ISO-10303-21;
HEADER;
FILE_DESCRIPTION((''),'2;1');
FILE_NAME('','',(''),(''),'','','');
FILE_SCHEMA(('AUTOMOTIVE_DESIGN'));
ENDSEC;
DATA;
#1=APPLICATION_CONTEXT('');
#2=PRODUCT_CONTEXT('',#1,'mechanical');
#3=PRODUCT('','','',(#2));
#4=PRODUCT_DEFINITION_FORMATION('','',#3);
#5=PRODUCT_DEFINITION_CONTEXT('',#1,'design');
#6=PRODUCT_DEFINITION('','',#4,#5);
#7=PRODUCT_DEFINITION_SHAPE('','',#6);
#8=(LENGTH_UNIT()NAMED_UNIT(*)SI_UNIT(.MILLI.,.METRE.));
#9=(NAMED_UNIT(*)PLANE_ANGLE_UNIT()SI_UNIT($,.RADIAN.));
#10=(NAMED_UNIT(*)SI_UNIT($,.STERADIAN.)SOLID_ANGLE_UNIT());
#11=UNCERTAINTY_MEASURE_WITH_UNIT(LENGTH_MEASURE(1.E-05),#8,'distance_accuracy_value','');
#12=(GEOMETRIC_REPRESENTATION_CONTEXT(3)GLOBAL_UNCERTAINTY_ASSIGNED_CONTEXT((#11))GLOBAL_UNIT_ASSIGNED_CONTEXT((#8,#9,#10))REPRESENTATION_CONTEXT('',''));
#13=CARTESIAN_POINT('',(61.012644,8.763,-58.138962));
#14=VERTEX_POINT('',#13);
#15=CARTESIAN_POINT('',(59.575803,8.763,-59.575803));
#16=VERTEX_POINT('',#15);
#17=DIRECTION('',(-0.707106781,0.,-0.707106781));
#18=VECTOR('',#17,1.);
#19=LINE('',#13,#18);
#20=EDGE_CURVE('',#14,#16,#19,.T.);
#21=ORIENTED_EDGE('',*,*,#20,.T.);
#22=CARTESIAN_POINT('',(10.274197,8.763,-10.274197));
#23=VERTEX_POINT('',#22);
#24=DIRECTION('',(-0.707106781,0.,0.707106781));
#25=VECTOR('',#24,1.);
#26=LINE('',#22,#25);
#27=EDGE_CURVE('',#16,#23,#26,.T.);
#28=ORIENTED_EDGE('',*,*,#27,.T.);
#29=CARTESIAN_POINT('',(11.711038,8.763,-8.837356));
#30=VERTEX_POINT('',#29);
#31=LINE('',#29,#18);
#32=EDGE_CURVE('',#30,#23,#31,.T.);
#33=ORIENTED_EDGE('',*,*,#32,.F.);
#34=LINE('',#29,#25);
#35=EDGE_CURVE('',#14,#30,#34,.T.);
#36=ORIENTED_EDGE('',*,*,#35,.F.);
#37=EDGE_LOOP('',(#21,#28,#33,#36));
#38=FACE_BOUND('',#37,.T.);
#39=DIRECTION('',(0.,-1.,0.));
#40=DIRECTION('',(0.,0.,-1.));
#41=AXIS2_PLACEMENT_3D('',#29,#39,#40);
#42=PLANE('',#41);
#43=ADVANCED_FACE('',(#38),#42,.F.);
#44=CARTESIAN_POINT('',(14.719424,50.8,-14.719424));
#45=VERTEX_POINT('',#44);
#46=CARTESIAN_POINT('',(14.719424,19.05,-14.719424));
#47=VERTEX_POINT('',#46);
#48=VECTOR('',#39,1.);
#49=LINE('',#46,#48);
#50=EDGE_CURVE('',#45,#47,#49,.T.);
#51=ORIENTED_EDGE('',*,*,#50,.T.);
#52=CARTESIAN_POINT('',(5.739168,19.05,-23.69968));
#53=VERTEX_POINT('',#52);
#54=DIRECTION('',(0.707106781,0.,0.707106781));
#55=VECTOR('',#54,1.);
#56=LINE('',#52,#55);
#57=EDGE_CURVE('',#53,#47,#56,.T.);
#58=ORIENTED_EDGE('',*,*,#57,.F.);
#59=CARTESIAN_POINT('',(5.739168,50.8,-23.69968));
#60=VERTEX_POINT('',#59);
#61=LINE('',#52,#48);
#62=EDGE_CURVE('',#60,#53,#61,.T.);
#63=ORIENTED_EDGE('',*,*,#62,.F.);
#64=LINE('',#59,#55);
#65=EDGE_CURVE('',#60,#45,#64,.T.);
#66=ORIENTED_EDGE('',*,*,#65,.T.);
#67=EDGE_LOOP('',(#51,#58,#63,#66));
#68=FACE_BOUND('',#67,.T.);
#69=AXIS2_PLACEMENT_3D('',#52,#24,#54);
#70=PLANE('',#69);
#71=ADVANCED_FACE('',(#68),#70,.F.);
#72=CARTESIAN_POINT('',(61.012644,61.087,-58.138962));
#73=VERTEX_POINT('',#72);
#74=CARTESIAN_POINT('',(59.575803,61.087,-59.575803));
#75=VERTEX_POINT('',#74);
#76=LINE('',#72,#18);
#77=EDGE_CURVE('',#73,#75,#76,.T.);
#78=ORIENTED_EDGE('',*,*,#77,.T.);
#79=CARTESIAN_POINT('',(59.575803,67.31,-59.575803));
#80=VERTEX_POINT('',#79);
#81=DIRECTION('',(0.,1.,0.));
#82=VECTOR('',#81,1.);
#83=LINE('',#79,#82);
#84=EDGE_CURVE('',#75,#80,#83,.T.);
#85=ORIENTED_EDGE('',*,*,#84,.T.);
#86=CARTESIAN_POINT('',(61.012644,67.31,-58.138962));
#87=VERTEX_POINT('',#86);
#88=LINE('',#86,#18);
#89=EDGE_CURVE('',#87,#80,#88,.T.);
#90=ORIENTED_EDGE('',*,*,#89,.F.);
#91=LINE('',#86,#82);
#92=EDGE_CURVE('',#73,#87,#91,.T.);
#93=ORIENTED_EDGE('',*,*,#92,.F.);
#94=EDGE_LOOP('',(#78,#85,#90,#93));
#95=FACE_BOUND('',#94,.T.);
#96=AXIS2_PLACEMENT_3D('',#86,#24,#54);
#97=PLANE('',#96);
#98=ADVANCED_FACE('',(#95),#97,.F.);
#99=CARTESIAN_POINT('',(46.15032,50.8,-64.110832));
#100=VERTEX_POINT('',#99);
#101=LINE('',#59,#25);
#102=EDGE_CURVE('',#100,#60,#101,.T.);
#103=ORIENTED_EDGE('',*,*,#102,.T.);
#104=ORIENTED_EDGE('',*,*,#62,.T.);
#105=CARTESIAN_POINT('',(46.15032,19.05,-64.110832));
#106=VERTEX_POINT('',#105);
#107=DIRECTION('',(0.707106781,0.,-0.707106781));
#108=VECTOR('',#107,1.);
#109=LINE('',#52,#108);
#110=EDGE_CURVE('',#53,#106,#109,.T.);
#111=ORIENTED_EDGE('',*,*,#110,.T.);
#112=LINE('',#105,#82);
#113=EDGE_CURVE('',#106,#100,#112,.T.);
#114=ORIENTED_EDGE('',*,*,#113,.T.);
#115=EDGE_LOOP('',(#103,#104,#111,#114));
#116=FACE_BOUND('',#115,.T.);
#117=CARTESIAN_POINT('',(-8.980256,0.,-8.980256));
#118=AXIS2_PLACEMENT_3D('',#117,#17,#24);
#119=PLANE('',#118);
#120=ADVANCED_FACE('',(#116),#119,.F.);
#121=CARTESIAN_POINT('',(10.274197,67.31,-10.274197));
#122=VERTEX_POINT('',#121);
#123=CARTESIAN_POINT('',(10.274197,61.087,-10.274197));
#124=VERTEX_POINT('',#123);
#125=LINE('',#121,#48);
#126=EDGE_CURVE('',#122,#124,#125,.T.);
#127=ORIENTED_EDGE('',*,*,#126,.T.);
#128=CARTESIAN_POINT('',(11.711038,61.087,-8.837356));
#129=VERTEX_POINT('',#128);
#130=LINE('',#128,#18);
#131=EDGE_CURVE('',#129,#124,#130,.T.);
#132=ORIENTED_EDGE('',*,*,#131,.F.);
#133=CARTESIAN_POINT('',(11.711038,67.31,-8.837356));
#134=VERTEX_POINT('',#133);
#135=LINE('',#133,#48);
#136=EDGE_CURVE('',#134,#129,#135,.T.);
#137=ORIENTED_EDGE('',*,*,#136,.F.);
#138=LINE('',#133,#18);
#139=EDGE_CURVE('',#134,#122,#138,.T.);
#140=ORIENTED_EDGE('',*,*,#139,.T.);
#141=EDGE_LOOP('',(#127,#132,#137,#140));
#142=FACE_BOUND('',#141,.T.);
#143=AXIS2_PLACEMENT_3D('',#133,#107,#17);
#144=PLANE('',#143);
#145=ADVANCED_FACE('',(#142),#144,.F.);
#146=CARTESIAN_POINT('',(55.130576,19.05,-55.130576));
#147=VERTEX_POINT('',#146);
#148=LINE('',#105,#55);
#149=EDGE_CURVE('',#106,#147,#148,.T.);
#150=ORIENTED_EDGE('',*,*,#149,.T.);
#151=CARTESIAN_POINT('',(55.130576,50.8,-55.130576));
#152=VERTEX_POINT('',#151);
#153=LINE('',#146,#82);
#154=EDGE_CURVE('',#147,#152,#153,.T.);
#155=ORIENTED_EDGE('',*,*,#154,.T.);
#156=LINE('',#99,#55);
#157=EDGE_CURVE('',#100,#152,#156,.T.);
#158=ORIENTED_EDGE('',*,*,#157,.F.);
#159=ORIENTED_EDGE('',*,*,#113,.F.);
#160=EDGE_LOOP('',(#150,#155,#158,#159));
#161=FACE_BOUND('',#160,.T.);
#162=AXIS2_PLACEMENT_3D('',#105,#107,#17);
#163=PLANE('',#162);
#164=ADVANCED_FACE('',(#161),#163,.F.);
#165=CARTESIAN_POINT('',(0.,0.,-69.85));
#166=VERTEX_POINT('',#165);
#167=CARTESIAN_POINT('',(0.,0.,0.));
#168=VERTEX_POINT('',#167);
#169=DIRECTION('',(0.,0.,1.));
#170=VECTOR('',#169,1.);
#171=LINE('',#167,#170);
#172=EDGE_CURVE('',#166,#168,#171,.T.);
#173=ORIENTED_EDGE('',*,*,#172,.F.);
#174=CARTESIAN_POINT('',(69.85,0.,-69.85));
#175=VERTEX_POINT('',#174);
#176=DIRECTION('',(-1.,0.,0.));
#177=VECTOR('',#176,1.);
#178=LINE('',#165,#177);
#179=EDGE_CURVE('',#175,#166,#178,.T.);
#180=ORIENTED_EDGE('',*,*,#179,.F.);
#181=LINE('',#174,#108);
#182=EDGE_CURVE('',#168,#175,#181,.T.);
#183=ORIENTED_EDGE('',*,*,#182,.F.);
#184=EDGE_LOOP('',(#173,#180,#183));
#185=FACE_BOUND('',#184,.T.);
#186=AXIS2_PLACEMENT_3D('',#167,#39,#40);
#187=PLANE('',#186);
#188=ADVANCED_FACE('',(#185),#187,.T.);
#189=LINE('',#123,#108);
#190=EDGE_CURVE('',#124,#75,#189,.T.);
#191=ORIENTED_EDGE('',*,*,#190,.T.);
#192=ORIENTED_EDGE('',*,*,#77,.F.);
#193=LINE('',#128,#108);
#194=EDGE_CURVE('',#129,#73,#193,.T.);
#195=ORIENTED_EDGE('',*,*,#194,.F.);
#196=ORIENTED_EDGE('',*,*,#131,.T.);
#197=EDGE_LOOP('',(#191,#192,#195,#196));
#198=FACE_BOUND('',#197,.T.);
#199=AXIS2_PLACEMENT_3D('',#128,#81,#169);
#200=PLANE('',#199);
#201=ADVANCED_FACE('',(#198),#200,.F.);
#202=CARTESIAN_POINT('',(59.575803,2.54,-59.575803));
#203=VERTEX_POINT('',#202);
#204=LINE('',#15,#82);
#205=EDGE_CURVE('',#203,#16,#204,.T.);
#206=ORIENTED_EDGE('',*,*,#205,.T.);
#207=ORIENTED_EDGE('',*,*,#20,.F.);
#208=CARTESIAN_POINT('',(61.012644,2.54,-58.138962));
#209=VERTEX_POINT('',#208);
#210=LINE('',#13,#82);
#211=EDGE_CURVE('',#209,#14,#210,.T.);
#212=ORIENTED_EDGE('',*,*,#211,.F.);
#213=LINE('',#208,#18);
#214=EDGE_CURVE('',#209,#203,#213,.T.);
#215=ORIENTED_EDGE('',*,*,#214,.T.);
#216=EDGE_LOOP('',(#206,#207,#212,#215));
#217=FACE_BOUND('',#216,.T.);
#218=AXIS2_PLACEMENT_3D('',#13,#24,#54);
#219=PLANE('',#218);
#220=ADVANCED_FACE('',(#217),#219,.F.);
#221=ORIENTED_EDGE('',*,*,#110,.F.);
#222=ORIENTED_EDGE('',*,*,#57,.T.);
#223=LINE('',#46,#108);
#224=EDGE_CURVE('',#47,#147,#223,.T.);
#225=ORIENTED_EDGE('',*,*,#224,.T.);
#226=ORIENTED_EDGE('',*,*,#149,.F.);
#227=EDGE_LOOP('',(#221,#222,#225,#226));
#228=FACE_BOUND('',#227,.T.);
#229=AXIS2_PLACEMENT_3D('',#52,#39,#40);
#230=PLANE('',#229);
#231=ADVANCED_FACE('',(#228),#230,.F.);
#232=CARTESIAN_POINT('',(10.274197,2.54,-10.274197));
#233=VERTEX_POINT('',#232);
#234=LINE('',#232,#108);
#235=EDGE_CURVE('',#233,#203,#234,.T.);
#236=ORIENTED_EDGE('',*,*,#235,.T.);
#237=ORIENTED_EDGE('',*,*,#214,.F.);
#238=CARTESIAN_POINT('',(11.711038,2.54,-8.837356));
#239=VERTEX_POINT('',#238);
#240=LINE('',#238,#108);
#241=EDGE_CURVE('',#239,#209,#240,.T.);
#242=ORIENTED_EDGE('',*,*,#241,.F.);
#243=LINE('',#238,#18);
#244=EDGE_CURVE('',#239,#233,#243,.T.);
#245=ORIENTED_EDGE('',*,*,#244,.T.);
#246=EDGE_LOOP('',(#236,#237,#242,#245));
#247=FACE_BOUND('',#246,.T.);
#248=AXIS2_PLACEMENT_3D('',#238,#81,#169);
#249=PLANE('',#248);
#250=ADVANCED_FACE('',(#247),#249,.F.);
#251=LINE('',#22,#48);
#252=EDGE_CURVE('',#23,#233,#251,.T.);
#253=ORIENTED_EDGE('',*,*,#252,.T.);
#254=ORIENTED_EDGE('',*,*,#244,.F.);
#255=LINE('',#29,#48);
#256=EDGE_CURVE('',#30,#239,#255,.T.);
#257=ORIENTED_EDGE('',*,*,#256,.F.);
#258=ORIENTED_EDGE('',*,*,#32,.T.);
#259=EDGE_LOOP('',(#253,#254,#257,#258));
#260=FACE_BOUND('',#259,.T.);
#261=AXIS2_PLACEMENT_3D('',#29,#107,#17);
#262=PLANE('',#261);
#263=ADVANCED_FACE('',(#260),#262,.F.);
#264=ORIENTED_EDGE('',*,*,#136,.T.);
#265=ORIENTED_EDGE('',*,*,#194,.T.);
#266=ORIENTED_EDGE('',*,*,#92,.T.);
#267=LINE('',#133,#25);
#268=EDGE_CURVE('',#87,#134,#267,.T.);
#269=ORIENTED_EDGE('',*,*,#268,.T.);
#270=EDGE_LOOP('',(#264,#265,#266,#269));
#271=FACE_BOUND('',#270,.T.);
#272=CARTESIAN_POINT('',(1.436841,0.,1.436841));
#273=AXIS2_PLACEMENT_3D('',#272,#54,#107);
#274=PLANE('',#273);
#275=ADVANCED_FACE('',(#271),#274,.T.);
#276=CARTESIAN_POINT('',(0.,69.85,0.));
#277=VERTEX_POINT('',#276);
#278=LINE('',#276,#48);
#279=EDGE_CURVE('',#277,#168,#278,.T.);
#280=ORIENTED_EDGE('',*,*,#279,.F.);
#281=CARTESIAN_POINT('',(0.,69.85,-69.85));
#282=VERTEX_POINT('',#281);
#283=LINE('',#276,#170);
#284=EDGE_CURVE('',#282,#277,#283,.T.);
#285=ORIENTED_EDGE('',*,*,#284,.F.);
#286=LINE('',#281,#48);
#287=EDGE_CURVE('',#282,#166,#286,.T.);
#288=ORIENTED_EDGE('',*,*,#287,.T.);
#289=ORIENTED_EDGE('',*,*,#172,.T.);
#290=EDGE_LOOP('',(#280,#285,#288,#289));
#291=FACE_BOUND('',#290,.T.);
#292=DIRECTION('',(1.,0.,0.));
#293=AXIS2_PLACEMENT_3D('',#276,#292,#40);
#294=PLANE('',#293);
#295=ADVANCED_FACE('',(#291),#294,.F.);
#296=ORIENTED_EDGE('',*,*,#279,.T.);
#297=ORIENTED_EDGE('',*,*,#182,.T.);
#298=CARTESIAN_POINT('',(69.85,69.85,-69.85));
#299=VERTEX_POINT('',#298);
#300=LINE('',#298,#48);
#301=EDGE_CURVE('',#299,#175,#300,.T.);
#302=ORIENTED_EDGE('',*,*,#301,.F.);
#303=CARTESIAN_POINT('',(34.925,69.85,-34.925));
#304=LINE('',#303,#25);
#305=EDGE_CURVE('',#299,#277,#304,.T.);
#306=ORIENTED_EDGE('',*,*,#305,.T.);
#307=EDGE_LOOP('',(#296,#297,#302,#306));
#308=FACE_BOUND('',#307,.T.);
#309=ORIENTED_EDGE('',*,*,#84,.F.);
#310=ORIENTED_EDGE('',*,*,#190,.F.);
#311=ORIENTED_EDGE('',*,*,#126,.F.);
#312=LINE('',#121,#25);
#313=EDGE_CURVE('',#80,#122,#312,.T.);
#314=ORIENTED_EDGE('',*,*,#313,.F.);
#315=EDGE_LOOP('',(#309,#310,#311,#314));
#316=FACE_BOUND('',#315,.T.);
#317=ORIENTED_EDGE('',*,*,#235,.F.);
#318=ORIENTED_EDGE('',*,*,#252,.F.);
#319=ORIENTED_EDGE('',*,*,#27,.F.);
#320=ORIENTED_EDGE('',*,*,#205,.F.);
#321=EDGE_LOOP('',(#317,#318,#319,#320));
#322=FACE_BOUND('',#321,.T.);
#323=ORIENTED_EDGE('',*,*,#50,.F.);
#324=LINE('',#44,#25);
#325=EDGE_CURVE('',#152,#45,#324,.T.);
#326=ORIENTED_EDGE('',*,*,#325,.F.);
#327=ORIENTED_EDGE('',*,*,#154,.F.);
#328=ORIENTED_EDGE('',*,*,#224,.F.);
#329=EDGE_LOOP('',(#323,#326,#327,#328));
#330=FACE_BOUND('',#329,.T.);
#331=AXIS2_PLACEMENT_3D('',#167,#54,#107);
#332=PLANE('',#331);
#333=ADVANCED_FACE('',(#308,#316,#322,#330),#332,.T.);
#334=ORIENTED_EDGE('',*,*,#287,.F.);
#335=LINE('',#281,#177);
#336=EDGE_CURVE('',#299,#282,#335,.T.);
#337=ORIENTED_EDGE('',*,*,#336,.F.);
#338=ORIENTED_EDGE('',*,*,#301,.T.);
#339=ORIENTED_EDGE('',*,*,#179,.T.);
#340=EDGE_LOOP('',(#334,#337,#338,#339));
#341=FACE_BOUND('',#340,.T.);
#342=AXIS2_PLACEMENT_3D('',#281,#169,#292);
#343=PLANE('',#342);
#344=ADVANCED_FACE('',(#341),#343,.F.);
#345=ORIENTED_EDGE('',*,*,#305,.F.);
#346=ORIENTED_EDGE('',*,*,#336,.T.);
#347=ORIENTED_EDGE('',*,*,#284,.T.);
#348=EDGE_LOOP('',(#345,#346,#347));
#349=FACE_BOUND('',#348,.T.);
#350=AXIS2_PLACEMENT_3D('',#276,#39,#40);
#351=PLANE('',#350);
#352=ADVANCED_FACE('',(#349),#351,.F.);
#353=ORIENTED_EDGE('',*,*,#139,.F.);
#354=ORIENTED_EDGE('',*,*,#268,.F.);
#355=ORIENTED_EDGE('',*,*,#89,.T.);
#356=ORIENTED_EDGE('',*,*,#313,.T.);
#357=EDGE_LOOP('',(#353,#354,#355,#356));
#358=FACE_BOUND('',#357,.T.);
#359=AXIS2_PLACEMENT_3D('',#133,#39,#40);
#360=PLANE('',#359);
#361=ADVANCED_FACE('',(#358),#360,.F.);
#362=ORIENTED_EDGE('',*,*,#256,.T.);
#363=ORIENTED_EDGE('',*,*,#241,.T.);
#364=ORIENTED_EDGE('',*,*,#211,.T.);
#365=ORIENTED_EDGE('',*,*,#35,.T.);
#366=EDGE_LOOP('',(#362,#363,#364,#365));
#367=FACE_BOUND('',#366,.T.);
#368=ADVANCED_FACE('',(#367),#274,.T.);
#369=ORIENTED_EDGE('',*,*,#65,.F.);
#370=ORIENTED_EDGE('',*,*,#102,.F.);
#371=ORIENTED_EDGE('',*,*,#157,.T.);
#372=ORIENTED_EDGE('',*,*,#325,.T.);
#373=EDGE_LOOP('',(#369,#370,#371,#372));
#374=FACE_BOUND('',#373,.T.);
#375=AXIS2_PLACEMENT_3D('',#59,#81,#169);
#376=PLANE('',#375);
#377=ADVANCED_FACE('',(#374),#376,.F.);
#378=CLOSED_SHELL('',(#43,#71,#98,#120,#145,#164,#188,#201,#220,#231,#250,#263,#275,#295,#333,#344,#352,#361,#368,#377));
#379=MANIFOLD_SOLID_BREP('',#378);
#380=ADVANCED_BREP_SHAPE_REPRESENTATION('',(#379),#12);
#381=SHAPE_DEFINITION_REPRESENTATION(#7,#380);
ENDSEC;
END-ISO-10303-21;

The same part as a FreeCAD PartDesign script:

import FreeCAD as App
import Part
import Sketcher
from FreeCAD import Vector
Q = App.Units.Quantity


def add_polygon(sketch, points):
    """Adds a closed chain of lines whose ends are joined by coincident constraints."""
    first, n = sketch.GeometryCount, len(points)
    for a, b in zip(points, points[1:] + points[:1]):
        sketch.addGeometry(Part.LineSegment(App.Vector(*a, 0), App.Vector(*b, 0)), False)
    for i in range(n):
        sketch.addConstraint(Sketcher.Constraint("Coincident", first + i, 2, first + (i + 1) % n, 1))

doc = App.newDocument("Part")
params = doc.addObject("Spreadsheet::Sheet", "Params")
for row, (alias, value) in enumerate([
    ("sketch1_width", "2.75 in"),
    ("pad1_length", "2.75 in"),
    ("sketch2_height", "2.75 in"),
    ("pocket1_length", "100 mm"),
    ("sketch3_width", "2.745 in"),
    ("sketch3_height", "0.245 in"),
    ("pad2_length", "0.08 in"),
    ("sketch4_width", "2.25 in"),
    ("sketch4_height", "1.25 in"),
    ("pocket2_length", "0.5 in"),
], start=1):
    params.set(f"A{row}", alias)
    params.set(f"B{row}", "=" + value)
    params.setAlias(f"B{row}", alias)

body = doc.addObject("PartDesign::Body", "Body")

# Sketch on XZ plane
sketch1 = body.newObject("Sketcher::SketchObject", "Sketch")
sketch1.AttachmentSupport = (doc.getObject("XZ_Plane"), [""])
sketch1.MapMode = "FlatFace"
add_polygon(sketch1, [(0, -70), (0, 0), (70, 0), (70, -70)])  # lines 0-3
sketch1.addConstraint([
    Sketcher.Constraint("Vertical", 0),
    Sketcher.Constraint("Horizontal", 1),
    Sketcher.Constraint("Vertical", 2),
    Sketcher.Constraint("Horizontal", 3),
    Sketcher.Constraint("Coincident", 0, 2, -1, 1),
    Sketcher.Constraint("Equal", 3, 0),
    Sketcher.Constraint("DistanceX", 1, 1, 1, 2, Q("2.75 in")),
])
sketch1.setExpression("Constraints[10]", "Params.sketch1_width")
pad1 = body.newObject("PartDesign::Pad", "Pad")
pad1.Profile = sketch1
pad1.setExpression("Length", "Params.pad1_length")
pad1.Reversed = True

# Sketch on an angled plane
sketch2 = body.newObject("Sketcher::SketchObject", "Sketch001")
sketch2.Placement = App.Placement(Vector(0, 0, 0), App.Rotation(Vector(0.707106781, 0, -0.707106781), Vector(0, 0.999999999, 0), Vector(0.707106781, 0, 0.707106781), "ZXY"))
add_polygon(sketch2, [(99, 0), (99, 70), (0, 70), (0, 0)])  # lines 0-3
sketch2.addConstraint([
    Sketcher.Constraint("Vertical", 0),
    Sketcher.Constraint("Horizontal", 1),
    Sketcher.Constraint("Vertical", 2),
    Sketcher.Constraint("Horizontal", 3),
    Sketcher.Constraint("Coincident", 2, 2, -1, 1),
    Sketcher.Constraint("DistanceY", 0, 1, 0, 2, Q("2.75 in")),
    Sketcher.Constraint("DistanceX", 1, 2, 1, 1, 98.782817),
])
sketch2.setExpression("Constraints[9]", "Params.sketch2_height")
pocket1 = body.newObject("PartDesign::Pocket", "Pocket")
pocket1.Profile = sketch2
pocket1.setExpression("Length", "Params.pocket1_length")
pocket1.Reversed = True

# Sketch on an angled plane
sketch3 = body.newObject("Sketcher::SketchObject", "Sketch002")
sketch3.Placement = App.Placement(Vector(0, 0, 0), App.Rotation(Vector(0.707106781, 0, -0.707106781), Vector(0, 0.999999999, 0), Vector(0.707106781, 0, 0.707106781), "ZXY"))
add_polygon(sketch3, [(15, 9), (15, 3), (84, 3), (84, 9)])  # lines 0-3
add_polygon(sketch3, [(15, 67), (15, 61), (84, 61), (84, 67)])  # lines 4-7
sketch3.addConstraint([
    Sketcher.Constraint("Vertical", 0),
    Sketcher.Constraint("Horizontal", 1),
    Sketcher.Constraint("Vertical", 2),
    Sketcher.Constraint("Horizontal", 3),
    Sketcher.Constraint("Vertical", 4),
    Sketcher.Constraint("Horizontal", 5),
    Sketcher.Constraint("Vertical", 6),
    Sketcher.Constraint("Horizontal", 7),
    Sketcher.Constraint("Vertical", 3, 2, 4, 2),
    Sketcher.Constraint("Vertical", 2, 2, 5, 2),
    Sketcher.Constraint("Equal", 2, 4),
    Sketcher.Constraint("DistanceY", -1, 1, 0, 2, Q("0.1 in")),
    Sketcher.Constraint("DistanceX", 1, 1, 1, 2, Q("2.745 in")),
    Sketcher.Constraint("DistanceY", 0, 2, 0, 1, Q("0.245 in")),
    Sketcher.Constraint("DistanceY", -1, 1, 6, 2, Q("2.65 in")),
    Sketcher.Constraint("DistanceX", -1, 1, 0, 2, 14.529909),
])
sketch3.setExpression("Constraints[20]", "Params.sketch3_width")
sketch3.setExpression("Constraints[21]", "Params.sketch3_height")
pad2 = body.newObject("PartDesign::Pad", "Pad001")
pad2.Profile = sketch3
pad2.setExpression("Length", "Params.pad2_length")

# Sketch on an angled plane
sketch4 = body.newObject("Sketcher::SketchObject", "Sketch003")
sketch4.Placement = App.Placement(Vector(0, 0, 0), App.Rotation(Vector(0.707106781, 0, -0.707106781), Vector(0, 0.999999999, 0), Vector(0.707106781, 0, 0.707106781), "ZXY"))
add_polygon(sketch4, [(21, 51), (21, 19), (78, 19), (78, 51)])  # lines 0-3
sketch4.addConstraint([
    Sketcher.Constraint("Vertical", 0),
    Sketcher.Constraint("Horizontal", 1),
    Sketcher.Constraint("Vertical", 2),
    Sketcher.Constraint("Horizontal", 3),
    Sketcher.Constraint("DistanceY", -1, 1, 2, 2, Q("2 in")),
    Sketcher.Constraint("DistanceX", 1, 1, 1, 2, Q("2.25 in")),
    Sketcher.Constraint("DistanceY", 0, 2, 0, 1, Q("1.25 in")),
    Sketcher.Constraint("DistanceX", -1, 1, 0, 2, 20.816409),
])
sketch4.setExpression("Constraints[9]", "Params.sketch4_width")
sketch4.setExpression("Constraints[10]", "Params.sketch4_height")
pocket2 = body.newObject("PartDesign::Pocket", "Pocket001")
pocket2.Profile = sketch4
pocket2.setExpression("Length", "Params.pocket2_length")

doc.recompute()
